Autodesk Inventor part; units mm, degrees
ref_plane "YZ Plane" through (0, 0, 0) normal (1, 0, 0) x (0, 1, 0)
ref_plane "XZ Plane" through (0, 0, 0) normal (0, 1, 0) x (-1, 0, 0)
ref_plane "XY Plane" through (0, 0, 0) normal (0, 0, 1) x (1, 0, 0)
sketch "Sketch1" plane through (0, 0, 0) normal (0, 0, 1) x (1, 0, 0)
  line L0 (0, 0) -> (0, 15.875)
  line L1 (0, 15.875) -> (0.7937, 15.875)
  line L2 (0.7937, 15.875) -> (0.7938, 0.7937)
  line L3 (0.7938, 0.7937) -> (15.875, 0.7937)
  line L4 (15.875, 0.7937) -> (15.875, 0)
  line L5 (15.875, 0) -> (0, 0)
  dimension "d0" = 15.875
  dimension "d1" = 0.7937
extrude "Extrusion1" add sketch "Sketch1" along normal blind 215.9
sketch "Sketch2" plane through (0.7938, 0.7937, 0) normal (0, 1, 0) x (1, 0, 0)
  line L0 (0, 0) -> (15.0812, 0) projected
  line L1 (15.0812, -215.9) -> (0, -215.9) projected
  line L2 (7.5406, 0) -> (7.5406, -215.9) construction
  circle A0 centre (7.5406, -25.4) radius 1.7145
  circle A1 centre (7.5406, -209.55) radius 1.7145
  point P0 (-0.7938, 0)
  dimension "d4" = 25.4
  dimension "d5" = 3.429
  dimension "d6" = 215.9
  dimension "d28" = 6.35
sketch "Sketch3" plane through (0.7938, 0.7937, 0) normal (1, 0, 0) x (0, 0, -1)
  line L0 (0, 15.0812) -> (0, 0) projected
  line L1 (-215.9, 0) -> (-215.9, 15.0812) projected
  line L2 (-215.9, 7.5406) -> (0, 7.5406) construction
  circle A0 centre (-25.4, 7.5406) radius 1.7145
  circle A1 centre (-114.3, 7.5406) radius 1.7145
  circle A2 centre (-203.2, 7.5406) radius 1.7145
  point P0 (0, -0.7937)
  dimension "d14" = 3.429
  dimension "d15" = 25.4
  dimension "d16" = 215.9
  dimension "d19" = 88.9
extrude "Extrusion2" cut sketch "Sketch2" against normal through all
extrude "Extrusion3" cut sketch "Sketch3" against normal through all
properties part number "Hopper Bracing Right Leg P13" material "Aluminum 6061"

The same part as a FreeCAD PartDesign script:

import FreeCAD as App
import Part
import Sketcher
from FreeCAD import Vector
Q = App.Units.Quantity

doc = App.newDocument("Part")
body = doc.addObject("PartDesign::Body", "Body")

# Sketch on XY plane
sketch1 = body.newObject("Sketcher::SketchObject", "Sketch")
sketch1.AttachmentSupport = (doc.getObject("XY_Plane"), [""])
sketch1.MapMode = "FlatFace"
sketch1.addGeometry([
    Part.LineSegment(Vector(0, 15.9, 0), Vector(0, 0, 0)),  # 0
    Part.LineSegment(Vector(0, 0, 0), Vector(15.9, 0, 0)),  # 1
    Part.LineSegment(Vector(15.9, 0, 0), Vector(15.9, 0.8, 0)),  # 2
    Part.LineSegment(Vector(15.9, 0.8, 0), Vector(0.8, 0.8, 0)),  # 3
    Part.LineSegment(Vector(0.8, 0.8, 0), Vector(0.8, 15.9, 0)),  # 4
    Part.LineSegment(Vector(0.8, 15.9, 0), Vector(0, 15.9, 0)),  # 5
], False)
sketch1.addConstraint([
    Sketcher.Constraint("Coincident", 0, 2, 1, 1),
    Sketcher.Constraint("Coincident", 1, 2, 2, 1),
    Sketcher.Constraint("Coincident", 2, 2, 3, 1),
    Sketcher.Constraint("Coincident", 3, 2, 4, 1),
    Sketcher.Constraint("Coincident", 4, 2, 5, 1),
    Sketcher.Constraint("Coincident", 5, 2, 0, 1),
    Sketcher.Constraint("Vertical", 0),
    Sketcher.Constraint("Horizontal", 1),
    Sketcher.Constraint("Vertical", 2),
    Sketcher.Constraint("Horizontal", 3),
    Sketcher.Constraint("Vertical", 4),
    Sketcher.Constraint("Horizontal", 5),
    Sketcher.Constraint("Coincident", 0, 2, -1, 1),
    Sketcher.Constraint("Equal", 1, 0),
    Sketcher.Constraint("Equal", 5, 2),
    Sketcher.Constraint("DistanceX", 1, 1, 1, 2, Q("0.625 in")),
    Sketcher.Constraint("DistanceX", 5, 2, 5, 1, Q("0.031248 in")),
])
pad1 = body.newObject("PartDesign::Pad", "Pad")
pad1.Profile = sketch1
pad1.Length = Q("8.5 in")

# Sketch on XZ plane
sketch2 = body.newObject("Sketcher::SketchObject", "Sketch001")
sketch2.AttachmentSupport = (doc.getObject("XZ_Plane"), [""])
sketch2.MapMode = "FlatFace"
sketch2.AttachmentOffset = App.Placement(Vector(0, 0, -0.031248 * 25.4), App.Rotation())
sketch2.addGeometry([
    Part.Circle(Vector(8.3, 25.4, 0), Vector(0, 0, 1), 1.7),
    Part.Circle(Vector(8.3, 209.6, 0), Vector(0, 0, 1), 1.7),
], False)
sketch2.addConstraint([
    Sketcher.Constraint("Equal", 0, 1),
    Sketcher.Constraint("Vertical", 0, 3, 1, 3),
    Sketcher.Constraint("Diameter", 0, Q("0.135 in")),
    Sketcher.Constraint("DistanceY", -1, 1, 0, 3, Q("1 in")),
    Sketcher.Constraint("DistanceY", -1, 1, 1, 3, Q("8.25 in")),
    Sketcher.Constraint("DistanceX", -1, 1, 0, 3, Q("0.328126 in")),
])
pocket1 = body.newObject("PartDesign::Pocket", "Pocket")
pocket1.Profile = sketch2
pocket1.Type = "ThroughAll"
pocket1.Reversed = True

# Sketch on YZ plane
sketch3 = body.newObject("Sketcher::SketchObject", "Sketch002")
sketch3.AttachmentSupport = (doc.getObject("YZ_Plane"), [""])
sketch3.MapMode = "FlatFace"
sketch3.AttachmentOffset = App.Placement(Vector(0, 0, 0.031252 * 25.4), App.Rotation())
sketch3.addGeometry([
    Part.Circle(Vector(8.3, 25.4, 0), Vector(0, 0, 1), 1.7),
    Part.Circle(Vector(8.3, 114.3, 0), Vector(0, 0, 1), 1.7),
    Part.Circle(Vector(8.3, 203.2, 0), Vector(0, 0, 1), 1.7),
], False)
sketch3.addConstraint([
    Sketcher.Constraint("Equal", 0, 1),
    Sketcher.Constraint("Equal", 1, 2),
    Sketcher.Constraint("Vertical", 0, 3, 1, 3),
    Sketcher.Constraint("Vertical", 1, 3, 2, 3),
    Sketcher.Constraint("Diameter", 0, Q("0.135 in")),
    Sketcher.Constraint("DistanceY", -1, 1, 0, 3, Q("1 in")),
    Sketcher.Constraint("DistanceY", 0, 3, 1, 3, Q("3.5 in")),
    Sketcher.Constraint("DistanceY", 1, 3, 2, 3, Q("3.5 in")),
    Sketcher.Constraint("DistanceX", -1, 1, 0, 3, Q("0.328122 in")),
])
pocket2 = body.newObject("PartDesign::Pocket", "Pocket001")
pocket2.Profile = sketch3
pocket2.Type = "ThroughAll"

doc.recompute()
